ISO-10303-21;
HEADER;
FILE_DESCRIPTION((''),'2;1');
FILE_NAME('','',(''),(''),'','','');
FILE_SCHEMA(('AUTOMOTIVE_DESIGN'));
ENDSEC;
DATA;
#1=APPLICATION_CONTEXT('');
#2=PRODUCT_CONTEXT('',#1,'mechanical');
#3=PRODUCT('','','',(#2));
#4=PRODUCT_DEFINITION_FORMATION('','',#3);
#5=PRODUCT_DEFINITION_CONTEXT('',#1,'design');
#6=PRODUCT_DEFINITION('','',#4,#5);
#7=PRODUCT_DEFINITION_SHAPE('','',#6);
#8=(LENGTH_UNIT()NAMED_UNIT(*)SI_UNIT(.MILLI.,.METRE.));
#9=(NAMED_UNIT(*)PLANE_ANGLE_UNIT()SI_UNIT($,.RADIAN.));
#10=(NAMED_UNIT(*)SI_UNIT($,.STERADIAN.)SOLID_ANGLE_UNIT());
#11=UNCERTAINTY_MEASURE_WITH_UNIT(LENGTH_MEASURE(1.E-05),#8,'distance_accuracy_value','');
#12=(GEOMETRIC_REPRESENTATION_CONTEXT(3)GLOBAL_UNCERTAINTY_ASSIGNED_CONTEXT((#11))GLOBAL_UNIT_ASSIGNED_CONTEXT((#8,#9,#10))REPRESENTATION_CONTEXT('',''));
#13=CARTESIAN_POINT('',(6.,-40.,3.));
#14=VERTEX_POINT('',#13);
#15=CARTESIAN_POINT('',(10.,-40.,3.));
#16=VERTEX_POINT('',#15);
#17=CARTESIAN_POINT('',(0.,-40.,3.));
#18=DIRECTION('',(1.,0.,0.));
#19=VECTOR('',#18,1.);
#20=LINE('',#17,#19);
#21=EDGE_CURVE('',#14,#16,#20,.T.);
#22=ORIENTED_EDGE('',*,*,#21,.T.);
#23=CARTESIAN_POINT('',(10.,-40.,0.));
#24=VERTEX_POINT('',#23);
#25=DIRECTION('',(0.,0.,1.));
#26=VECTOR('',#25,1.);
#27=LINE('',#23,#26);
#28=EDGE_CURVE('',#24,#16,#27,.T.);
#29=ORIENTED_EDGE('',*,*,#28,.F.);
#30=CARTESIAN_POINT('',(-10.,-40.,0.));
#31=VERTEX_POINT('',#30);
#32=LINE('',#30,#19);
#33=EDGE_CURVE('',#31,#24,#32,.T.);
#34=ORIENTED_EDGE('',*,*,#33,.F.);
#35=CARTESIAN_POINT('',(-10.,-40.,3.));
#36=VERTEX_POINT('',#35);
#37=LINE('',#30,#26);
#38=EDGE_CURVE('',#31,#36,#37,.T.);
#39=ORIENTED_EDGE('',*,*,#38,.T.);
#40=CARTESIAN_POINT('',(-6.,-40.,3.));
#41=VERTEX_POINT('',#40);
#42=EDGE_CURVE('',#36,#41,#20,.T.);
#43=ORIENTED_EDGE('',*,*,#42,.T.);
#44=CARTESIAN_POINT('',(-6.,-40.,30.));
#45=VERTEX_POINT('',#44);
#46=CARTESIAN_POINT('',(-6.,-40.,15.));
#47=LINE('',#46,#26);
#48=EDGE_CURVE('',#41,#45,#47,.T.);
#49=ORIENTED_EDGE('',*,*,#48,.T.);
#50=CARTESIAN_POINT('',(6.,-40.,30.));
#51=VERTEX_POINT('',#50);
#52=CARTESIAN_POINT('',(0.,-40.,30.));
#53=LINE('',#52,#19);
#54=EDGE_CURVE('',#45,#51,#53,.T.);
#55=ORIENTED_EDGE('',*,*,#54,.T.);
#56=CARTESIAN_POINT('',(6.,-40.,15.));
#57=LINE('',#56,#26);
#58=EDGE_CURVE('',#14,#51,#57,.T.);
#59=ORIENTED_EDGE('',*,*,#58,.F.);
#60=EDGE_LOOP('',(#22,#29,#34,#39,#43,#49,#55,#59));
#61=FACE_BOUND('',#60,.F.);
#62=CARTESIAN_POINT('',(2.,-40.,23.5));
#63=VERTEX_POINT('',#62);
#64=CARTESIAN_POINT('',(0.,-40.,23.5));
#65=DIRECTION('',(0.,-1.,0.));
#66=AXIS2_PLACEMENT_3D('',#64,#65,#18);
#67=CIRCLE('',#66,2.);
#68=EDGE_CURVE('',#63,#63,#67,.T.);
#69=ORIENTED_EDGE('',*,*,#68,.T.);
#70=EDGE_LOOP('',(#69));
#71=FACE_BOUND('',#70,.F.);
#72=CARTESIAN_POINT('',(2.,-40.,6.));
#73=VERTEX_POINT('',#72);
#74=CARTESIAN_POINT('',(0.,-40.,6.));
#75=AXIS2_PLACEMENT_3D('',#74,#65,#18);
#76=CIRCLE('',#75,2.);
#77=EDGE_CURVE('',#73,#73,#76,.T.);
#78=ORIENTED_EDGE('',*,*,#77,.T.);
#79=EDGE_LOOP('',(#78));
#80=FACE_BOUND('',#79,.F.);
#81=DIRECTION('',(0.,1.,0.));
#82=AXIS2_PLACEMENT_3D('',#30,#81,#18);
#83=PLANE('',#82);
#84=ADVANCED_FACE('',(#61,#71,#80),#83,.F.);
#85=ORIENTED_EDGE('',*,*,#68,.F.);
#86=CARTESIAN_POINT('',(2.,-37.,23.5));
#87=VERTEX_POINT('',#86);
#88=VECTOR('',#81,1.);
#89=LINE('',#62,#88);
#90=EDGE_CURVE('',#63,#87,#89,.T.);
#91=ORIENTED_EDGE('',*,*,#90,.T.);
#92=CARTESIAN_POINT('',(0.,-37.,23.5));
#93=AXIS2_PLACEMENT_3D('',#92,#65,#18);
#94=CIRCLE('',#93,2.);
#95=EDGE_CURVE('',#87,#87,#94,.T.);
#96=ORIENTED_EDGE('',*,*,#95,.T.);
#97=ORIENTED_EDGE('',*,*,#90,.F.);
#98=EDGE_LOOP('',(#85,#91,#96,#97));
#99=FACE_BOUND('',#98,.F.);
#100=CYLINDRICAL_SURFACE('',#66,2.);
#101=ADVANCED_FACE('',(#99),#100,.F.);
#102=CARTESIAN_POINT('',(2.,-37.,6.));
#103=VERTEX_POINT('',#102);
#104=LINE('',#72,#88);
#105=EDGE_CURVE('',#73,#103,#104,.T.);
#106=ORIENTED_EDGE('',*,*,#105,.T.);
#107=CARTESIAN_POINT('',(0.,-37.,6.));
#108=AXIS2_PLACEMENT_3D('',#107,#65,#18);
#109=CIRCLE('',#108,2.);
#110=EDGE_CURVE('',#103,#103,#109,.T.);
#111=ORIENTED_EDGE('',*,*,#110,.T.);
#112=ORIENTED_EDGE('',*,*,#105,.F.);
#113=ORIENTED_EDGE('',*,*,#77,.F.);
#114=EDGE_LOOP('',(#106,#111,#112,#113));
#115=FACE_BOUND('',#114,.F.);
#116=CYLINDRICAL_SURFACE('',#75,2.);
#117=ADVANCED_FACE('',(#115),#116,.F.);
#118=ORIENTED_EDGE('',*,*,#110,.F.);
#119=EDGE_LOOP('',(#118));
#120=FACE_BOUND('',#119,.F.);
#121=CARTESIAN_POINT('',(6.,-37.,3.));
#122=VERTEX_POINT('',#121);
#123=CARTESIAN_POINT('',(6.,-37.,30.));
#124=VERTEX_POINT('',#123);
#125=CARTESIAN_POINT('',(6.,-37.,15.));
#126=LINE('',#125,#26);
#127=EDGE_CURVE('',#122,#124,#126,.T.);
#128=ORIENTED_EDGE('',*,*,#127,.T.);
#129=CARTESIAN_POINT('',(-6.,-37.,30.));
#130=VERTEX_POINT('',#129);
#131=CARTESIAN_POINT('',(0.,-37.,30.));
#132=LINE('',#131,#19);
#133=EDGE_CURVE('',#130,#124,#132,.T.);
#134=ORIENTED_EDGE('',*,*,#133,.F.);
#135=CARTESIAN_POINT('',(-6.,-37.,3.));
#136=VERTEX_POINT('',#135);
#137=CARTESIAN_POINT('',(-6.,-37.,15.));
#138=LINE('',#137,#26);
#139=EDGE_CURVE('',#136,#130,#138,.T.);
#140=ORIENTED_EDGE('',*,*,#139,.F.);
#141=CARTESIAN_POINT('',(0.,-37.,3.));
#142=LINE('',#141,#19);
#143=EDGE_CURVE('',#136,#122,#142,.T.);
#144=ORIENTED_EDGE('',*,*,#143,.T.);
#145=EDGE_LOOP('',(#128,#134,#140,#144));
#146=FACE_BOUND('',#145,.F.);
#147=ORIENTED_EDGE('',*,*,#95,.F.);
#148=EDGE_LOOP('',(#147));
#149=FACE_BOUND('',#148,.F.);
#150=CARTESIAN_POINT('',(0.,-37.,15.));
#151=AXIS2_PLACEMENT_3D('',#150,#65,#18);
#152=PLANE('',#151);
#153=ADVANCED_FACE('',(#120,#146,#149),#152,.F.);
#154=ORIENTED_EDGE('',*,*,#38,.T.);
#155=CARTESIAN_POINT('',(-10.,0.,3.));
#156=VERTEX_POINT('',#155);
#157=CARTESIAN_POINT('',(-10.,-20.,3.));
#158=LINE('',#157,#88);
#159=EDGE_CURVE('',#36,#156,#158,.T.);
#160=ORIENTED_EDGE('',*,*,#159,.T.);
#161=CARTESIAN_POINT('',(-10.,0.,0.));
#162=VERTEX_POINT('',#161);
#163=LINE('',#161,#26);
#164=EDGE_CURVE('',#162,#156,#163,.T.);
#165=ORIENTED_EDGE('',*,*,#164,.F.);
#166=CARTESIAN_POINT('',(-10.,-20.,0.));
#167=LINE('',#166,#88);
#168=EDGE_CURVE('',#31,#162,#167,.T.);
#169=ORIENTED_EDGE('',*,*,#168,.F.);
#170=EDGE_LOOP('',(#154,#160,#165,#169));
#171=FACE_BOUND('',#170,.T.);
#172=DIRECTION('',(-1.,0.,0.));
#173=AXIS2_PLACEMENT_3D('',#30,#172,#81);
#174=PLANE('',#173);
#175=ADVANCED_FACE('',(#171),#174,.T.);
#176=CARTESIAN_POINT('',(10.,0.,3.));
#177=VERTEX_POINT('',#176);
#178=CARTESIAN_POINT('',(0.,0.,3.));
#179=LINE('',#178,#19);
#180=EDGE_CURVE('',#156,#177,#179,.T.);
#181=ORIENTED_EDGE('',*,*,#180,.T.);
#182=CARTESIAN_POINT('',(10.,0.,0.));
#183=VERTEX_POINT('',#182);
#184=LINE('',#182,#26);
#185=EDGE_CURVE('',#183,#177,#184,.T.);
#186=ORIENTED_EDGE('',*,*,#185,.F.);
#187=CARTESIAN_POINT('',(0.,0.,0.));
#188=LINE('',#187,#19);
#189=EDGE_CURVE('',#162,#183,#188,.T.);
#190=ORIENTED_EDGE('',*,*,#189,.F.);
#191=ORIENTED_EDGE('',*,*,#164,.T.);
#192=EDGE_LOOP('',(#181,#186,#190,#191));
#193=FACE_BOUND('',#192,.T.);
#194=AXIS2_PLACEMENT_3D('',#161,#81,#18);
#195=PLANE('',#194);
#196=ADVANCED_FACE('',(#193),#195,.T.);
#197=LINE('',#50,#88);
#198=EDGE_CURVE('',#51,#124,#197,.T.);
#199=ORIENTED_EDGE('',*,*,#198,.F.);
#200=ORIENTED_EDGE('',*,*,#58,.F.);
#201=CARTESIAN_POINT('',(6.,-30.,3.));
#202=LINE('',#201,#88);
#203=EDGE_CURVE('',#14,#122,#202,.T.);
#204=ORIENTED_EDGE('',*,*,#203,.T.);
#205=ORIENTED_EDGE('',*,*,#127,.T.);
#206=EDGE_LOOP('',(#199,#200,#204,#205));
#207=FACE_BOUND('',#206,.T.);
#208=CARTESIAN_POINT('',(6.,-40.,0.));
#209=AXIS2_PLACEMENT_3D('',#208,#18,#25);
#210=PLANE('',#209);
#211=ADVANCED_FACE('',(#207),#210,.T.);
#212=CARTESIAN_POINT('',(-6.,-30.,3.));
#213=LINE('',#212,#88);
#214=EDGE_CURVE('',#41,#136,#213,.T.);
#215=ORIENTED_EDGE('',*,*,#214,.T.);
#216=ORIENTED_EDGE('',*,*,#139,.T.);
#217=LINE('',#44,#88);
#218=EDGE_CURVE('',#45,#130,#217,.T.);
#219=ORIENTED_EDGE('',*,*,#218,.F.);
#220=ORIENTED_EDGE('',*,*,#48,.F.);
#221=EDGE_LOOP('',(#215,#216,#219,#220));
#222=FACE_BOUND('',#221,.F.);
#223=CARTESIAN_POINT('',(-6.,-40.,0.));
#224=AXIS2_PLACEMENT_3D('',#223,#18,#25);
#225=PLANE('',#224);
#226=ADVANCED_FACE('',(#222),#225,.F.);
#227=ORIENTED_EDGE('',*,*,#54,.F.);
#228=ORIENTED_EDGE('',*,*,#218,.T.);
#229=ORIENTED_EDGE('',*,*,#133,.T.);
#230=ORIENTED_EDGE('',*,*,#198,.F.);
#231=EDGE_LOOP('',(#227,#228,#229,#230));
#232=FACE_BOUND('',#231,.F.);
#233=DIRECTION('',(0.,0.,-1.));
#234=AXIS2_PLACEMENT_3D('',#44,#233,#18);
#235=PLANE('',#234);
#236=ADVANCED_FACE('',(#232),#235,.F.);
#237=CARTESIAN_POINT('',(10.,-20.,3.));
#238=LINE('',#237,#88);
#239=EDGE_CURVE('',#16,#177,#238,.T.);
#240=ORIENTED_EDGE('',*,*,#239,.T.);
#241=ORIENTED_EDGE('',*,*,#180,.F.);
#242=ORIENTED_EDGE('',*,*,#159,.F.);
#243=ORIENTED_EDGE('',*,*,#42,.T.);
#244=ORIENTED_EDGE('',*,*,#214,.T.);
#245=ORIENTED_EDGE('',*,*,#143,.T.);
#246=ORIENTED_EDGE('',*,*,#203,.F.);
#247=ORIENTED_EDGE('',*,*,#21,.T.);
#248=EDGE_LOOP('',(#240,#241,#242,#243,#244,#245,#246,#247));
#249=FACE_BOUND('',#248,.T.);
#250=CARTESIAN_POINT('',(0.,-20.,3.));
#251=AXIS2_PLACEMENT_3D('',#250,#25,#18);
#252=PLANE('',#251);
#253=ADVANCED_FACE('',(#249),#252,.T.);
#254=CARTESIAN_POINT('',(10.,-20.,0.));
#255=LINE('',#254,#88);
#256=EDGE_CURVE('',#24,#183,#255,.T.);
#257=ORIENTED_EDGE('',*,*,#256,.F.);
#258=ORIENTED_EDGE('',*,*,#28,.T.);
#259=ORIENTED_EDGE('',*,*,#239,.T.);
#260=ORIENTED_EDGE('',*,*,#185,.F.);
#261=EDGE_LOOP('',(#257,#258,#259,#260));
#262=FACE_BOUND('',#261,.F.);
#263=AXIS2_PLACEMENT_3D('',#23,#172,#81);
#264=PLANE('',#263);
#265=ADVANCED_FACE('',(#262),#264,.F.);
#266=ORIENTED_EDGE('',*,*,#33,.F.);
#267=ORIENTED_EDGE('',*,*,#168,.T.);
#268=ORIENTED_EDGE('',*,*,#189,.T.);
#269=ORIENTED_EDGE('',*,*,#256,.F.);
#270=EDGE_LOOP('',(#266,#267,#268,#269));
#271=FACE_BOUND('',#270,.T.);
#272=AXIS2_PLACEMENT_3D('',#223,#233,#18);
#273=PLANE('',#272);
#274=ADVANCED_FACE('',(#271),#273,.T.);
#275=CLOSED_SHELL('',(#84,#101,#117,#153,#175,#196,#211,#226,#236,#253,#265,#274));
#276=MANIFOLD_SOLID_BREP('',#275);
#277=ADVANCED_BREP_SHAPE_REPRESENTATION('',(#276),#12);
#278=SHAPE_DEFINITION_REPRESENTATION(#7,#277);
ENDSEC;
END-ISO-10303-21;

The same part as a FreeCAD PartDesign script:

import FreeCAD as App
import Part
import Sketcher

doc = App.newDocument("Part")
body = doc.addObject("PartDesign::Body", "Body")

# Sketch on XY plane
sketch1 = body.newObject("Sketcher::SketchObject", "Sketch")
sketch1.AttachmentSupport = (doc.getObject("XY_Plane"), [""])
sketch1.MapMode = "FlatFace"
sketch1.addGeometry(Part.LineSegment(App.Vector(-10, 0, 0), App.Vector(-10, -40, 0)), False)
sketch1.addGeometry(Part.LineSegment(App.Vector(-10, -40, 0), App.Vector(10, -40, 0)), False)
sketch1.addGeometry(Part.LineSegment(App.Vector(10, -40, 0), App.Vector(10, 0, 0)), False)
sketch1.addGeometry(Part.LineSegment(App.Vector(10, 0, 0), App.Vector(-10, 0, 0)), False)
sketch1.addConstraint(Sketcher.Constraint("Coincident", 0, 2, 1, 1))
sketch1.addConstraint(Sketcher.Constraint("Coincident", 1, 2, 2, 1))
sketch1.addConstraint(Sketcher.Constraint("Coincident", 2, 2, 3, 1))
sketch1.addConstraint(Sketcher.Constraint("Coincident", 3, 2, 0, 1))
sketch1.addConstraint(Sketcher.Constraint("Vertical", 0))
sketch1.addConstraint(Sketcher.Constraint("Horizontal", 1))
sketch1.addConstraint(Sketcher.Constraint("Vertical", 2))
sketch1.addConstraint(Sketcher.Constraint("Horizontal", 3))
sketch1.addConstraint(Sketcher.Constraint("Symmetric", 2, 2, 3, 2, -1, 1))
sketch1.addConstraint(Sketcher.Constraint("DistanceX", 1, 1, 1, 2, 20.0))
sketch1.addConstraint(Sketcher.Constraint("DistanceY", 0, 2, 0, 1, 40.0))
pad1 = body.newObject("PartDesign::Pad", "Pad")
pad1.Profile = sketch1
pad1.Length = 3

# Sketch on XZ plane
sketch2 = body.newObject("Sketcher::SketchObject", "Sketch001")
sketch2.AttachmentSupport = (doc.getObject("XZ_Plane"), [""])
sketch2.MapMode = "FlatFace"
sketch2.AttachmentOffset = App.Placement(App.Vector(0, 0, 40), App.Rotation())
sketch2.addGeometry(Part.LineSegment(App.Vector(-6, 30, 0), App.Vector(-6, 0, 0)), False)
sketch2.addGeometry(Part.LineSegment(App.Vector(-6, 0, 0), App.Vector(6, 0, 0)), False)
sketch2.addGeometry(Part.LineSegment(App.Vector(6, 0, 0), App.Vector(6, 30, 0)), False)
sketch2.addGeometry(Part.LineSegment(App.Vector(6, 30, 0), App.Vector(-6, 30, 0)), False)
sketch2.addGeometry(Part.Circle(App.Vector(0, 6, 0), App.Vector(0, 0, 1), 2), False)
sketch2.addGeometry(Part.Circle(App.Vector(0, 23.5, 0), App.Vector(0, 0, 1), 2), False)
sketch2.addConstraint(Sketcher.Constraint("Coincident", 0, 2, 1, 1))
sketch2.addConstraint(Sketcher.Constraint("Coincident", 1, 2, 2, 1))
sketch2.addConstraint(Sketcher.Constraint("Coincident", 2, 2, 3, 1))
sketch2.addConstraint(Sketcher.Constraint("Coincident", 3, 2, 0, 1))
sketch2.addConstraint(Sketcher.Constraint("Vertical", 0))
sketch2.addConstraint(Sketcher.Constraint("Horizontal", 1))
sketch2.addConstraint(Sketcher.Constraint("Vertical", 2))
sketch2.addConstraint(Sketcher.Constraint("Horizontal", 3))
sketch2.addConstraint(Sketcher.Constraint("Equal", 4, 5))
sketch2.addConstraint(Sketcher.Constraint("Symmetric", 0, 2, 1, 2, -1, 1))
sketch2.addConstraint(Sketcher.Constraint("PointOnObject", 4, 3, -2))
sketch2.addConstraint(Sketcher.Constraint("PointOnObject", 5, 3, -2))
sketch2.addConstraint(Sketcher.Constraint("Diameter", 4, 4.0))
sketch2.addConstraint(Sketcher.Constraint("DistanceX", 1, 1, 1, 2, 12.0))
sketch2.addConstraint(Sketcher.Constraint("DistanceY", 0, 2, 0, 1, 30.0))
sketch2.addConstraint(Sketcher.Constraint("DistanceY", -1, 1, 4, 3, 6.0))
sketch2.addConstraint(Sketcher.Constraint("DistanceY", -1, 1, 5, 3, 23.5))
pad2 = body.newObject("PartDesign::Pad", "Pad001")
pad2.Profile = sketch2
pad2.Length = 3
pad2.Reversed = True

doc.recompute()
